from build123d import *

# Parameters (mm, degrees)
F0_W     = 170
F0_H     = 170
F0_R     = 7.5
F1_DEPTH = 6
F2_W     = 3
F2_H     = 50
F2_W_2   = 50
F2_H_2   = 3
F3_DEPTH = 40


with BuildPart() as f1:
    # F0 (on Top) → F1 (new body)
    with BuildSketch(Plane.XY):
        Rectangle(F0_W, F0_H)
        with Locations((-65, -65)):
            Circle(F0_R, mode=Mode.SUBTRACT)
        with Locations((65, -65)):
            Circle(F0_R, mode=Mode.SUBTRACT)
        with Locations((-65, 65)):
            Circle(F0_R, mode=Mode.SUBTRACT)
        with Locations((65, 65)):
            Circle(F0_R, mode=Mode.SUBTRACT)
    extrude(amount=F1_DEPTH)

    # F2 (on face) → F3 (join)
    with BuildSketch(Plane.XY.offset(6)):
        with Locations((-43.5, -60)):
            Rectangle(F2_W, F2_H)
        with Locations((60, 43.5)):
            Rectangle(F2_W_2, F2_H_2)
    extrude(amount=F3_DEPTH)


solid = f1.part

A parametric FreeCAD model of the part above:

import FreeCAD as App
import Part
import Sketcher
from FreeCAD import Vector
Q = App.Units.Quantity


def add_polygon(sketch, points):
    """Adds a closed chain of lines whose ends are joined by coincident constraints."""
    first, n = sketch.GeometryCount, len(points)
    for a, b in zip(points, points[1:] + points[:1]):
        sketch.addGeometry(Part.LineSegment(App.Vector(*a, 0), App.Vector(*b, 0)), False)
    for i in range(n):
        sketch.addConstraint(Sketcher.Constraint("Coincident", first + i, 2, first + (i + 1) % n, 1))

doc = App.newDocument("Part")
body = doc.addObject("PartDesign::Body", "Body")

sketch1 = body.newObject("Sketcher::SketchObject", "Sketch")
sketch1.AttachmentSupport = (doc.getObject("XY_Plane"), [""])
sketch1.MapMode = "FlatFace"
add_polygon(sketch1, [(-85, 85), (-85, -85), (85, -85), (85, 85)])
sketch1.addGeometry(Part.Circle(Vector(-65, -65, 0), Vector(0, 0, 1), 8), False)
sketch1.addGeometry(Part.Circle(Vector(65, -65, 0), Vector(0, 0, 1), 8), False)
sketch1.addGeometry(Part.Circle(Vector(-65, 65, 0), Vector(0, 0, 1), 8), False)
sketch1.addGeometry(Part.Circle(Vector(65, 65, 0), Vector(0, 0, 1), 8), False)
sketch1.addConstraint(Sketcher.Constraint("Vertical", 0))
sketch1.addConstraint(Sketcher.Constraint("Horizontal", 1))
sketch1.addConstraint(Sketcher.Constraint("Vertical", 2))
sketch1.addConstraint(Sketcher.Constraint("Horizontal", 3))
sketch1.addConstraint(Sketcher.Constraint("Equal", 4, 5))
sketch1.addConstraint(Sketcher.Constraint("Equal", 5, 6))
sketch1.addConstraint(Sketcher.Constraint("Equal", 6, 7))
sketch1.addConstraint(Sketcher.Constraint("Symmetric", 5, 3, 6, 3, -1, 1))
sketch1.addConstraint(Sketcher.Constraint("Symmetric", 4, 3, 7, 3, -1, 1))
sketch1.addConstraint(Sketcher.Constraint("Symmetric", 0, 2, 2, 2, -1, 1))
sketch1.addConstraint(Sketcher.Constraint("Symmetric", 4, 3, 5, 3, -2))
sketch1.addConstraint(Sketcher.Constraint("Equal", 3, 0))
sketch1.addConstraint(Sketcher.Constraint("Diameter", 4, Q("15 mm")))
sketch1.addConstraint(Sketcher.Constraint("DistanceX", 1, 1, 1, 2, Q("170 mm")))
sketch1.addConstraint(Sketcher.Constraint("DistanceX", 4, 3, -1, 1, Q("65 mm")))
sketch1.addConstraint(Sketcher.Constraint("DistanceY", 4, 3, -1, 1, Q("65 mm")))
pad1 = body.newObject("PartDesign::Pad", "Pad")
pad1.Profile = sketch1
pad1.Length = 6

sketch2 = body.newObject("Sketcher::SketchObject", "Sketch001")
sketch2.AttachmentSupport = (doc.getObject("XY_Plane"), [""])
sketch2.MapMode = "FlatFace"
sketch2.AttachmentOffset = App.Placement(Vector(0, 0, 6), App.Rotation())
add_polygon(sketch2, [(-45, -35), (-45, -85), (-42, -85), (-42, -35)])
add_polygon(sketch2, [(35, 45), (35, 42), (85, 42), (85, 45)])
sketch2.addConstraint(Sketcher.Constraint("Vertical", 0))
sketch2.addConstraint(Sketcher.Constraint("Horizontal", 1))
sketch2.addConstraint(Sketcher.Constraint("Vertical", 2))
sketch2.addConstraint(Sketcher.Constraint("Horizontal", 3))
sketch2.addConstraint(Sketcher.Constraint("Vertical", 4))
sketch2.addConstraint(Sketcher.Constraint("Horizontal", 5))
sketch2.addConstraint(Sketcher.Constraint("Vertical", 6))
sketch2.addConstraint(Sketcher.Constraint("Horizontal", 7))
sketch2.addConstraint(Sketcher.Constraint("Equal", 7, 0))
sketch2.addConstraint(Sketcher.Constraint("Equal", 3, 4))
sketch2.addConstraint(Sketcher.Constraint("DistanceX", 1, 1, 1, 2, Q("3 mm")))
sketch2.addConstraint(Sketcher.Constraint("DistanceX", 5, 1, 5, 2, Q("50 mm")))
sketch2.addConstraint(Sketcher.Constraint("DistanceX", 0, 2, -1, 1, Q("45 mm")))
sketch2.addConstraint(Sketcher.Constraint("DistanceY", 0, 2, -1, 1, Q("85 mm")))
sketch2.addConstraint(Sketcher.Constraint("DistanceX", -1, 1, 4, 2, Q("35 mm")))
sketch2.addConstraint(Sketcher.Constraint("DistanceY", -1, 1, 4, 2, Q("42 mm")))
pad2 = body.newObject("PartDesign::Pad", "Pad001")
pad2.Profile = sketch2
pad2.Length = 40

doc.recompute()
